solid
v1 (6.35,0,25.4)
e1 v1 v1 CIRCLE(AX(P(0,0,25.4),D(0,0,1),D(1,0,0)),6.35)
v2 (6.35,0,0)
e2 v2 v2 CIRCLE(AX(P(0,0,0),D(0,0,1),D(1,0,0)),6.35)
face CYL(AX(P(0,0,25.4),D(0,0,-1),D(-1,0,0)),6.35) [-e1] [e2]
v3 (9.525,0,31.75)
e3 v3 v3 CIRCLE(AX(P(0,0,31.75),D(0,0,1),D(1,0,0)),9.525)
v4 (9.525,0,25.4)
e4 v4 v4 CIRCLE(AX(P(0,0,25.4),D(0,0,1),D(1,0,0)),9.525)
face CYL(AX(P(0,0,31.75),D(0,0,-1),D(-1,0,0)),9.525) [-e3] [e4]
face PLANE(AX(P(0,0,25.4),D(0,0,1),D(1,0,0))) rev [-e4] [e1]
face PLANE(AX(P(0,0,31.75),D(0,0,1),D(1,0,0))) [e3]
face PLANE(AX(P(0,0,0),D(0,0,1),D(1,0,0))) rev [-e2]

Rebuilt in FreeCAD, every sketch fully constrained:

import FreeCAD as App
import Part
import Sketcher

V = App.Vector
Q = App.Units.Quantity

doc = App.newDocument("Part")
body = doc.addObject("PartDesign::Body", "Body")

# Sketch on XY plane
sketch1 = body.newObject("Sketcher::SketchObject", "Sketch")
sketch1.AttachmentSupport = (doc.getObject("XY_Plane"), [""])
sketch1.MapMode = "FlatFace"
sketch1.addGeometry(Part.Circle(V(0, 0, 0), V(0, 0, 1), 6.35), False)
sketch1.addConstraint([
    Sketcher.Constraint("Coincident", 0, 3, -1, 1),
    Sketcher.Constraint("Diameter", 0, Q("0.5 in")),
])
pad1 = body.newObject("PartDesign::Pad", "Pad")
pad1.Profile = sketch1
pad1.Length = Q("1 in")

# Sketch on XY plane
sketch2 = body.newObject("Sketcher::SketchObject", "Sketch001")
sketch2.AttachmentSupport = (doc.getObject("XY_Plane"), [""])
sketch2.MapMode = "FlatFace"
sketch2.AttachmentOffset = App.Placement(V(0, 0, 1 * 25.4), App.Rotation())
sketch2.addGeometry(Part.Circle(V(0, 0, 0), V(0, 0, 1), 9.525), False)
sketch2.addConstraint([
    Sketcher.Constraint("Coincident", 0, 3, -1, 1),
    Sketcher.Constraint("Diameter", 0, Q("0.75 in")),
])
pad2 = body.newObject("PartDesign::Pad", "Pad001")
pad2.Profile = sketch2
pad2.Length = Q("0.25 in")

doc.recompute()
